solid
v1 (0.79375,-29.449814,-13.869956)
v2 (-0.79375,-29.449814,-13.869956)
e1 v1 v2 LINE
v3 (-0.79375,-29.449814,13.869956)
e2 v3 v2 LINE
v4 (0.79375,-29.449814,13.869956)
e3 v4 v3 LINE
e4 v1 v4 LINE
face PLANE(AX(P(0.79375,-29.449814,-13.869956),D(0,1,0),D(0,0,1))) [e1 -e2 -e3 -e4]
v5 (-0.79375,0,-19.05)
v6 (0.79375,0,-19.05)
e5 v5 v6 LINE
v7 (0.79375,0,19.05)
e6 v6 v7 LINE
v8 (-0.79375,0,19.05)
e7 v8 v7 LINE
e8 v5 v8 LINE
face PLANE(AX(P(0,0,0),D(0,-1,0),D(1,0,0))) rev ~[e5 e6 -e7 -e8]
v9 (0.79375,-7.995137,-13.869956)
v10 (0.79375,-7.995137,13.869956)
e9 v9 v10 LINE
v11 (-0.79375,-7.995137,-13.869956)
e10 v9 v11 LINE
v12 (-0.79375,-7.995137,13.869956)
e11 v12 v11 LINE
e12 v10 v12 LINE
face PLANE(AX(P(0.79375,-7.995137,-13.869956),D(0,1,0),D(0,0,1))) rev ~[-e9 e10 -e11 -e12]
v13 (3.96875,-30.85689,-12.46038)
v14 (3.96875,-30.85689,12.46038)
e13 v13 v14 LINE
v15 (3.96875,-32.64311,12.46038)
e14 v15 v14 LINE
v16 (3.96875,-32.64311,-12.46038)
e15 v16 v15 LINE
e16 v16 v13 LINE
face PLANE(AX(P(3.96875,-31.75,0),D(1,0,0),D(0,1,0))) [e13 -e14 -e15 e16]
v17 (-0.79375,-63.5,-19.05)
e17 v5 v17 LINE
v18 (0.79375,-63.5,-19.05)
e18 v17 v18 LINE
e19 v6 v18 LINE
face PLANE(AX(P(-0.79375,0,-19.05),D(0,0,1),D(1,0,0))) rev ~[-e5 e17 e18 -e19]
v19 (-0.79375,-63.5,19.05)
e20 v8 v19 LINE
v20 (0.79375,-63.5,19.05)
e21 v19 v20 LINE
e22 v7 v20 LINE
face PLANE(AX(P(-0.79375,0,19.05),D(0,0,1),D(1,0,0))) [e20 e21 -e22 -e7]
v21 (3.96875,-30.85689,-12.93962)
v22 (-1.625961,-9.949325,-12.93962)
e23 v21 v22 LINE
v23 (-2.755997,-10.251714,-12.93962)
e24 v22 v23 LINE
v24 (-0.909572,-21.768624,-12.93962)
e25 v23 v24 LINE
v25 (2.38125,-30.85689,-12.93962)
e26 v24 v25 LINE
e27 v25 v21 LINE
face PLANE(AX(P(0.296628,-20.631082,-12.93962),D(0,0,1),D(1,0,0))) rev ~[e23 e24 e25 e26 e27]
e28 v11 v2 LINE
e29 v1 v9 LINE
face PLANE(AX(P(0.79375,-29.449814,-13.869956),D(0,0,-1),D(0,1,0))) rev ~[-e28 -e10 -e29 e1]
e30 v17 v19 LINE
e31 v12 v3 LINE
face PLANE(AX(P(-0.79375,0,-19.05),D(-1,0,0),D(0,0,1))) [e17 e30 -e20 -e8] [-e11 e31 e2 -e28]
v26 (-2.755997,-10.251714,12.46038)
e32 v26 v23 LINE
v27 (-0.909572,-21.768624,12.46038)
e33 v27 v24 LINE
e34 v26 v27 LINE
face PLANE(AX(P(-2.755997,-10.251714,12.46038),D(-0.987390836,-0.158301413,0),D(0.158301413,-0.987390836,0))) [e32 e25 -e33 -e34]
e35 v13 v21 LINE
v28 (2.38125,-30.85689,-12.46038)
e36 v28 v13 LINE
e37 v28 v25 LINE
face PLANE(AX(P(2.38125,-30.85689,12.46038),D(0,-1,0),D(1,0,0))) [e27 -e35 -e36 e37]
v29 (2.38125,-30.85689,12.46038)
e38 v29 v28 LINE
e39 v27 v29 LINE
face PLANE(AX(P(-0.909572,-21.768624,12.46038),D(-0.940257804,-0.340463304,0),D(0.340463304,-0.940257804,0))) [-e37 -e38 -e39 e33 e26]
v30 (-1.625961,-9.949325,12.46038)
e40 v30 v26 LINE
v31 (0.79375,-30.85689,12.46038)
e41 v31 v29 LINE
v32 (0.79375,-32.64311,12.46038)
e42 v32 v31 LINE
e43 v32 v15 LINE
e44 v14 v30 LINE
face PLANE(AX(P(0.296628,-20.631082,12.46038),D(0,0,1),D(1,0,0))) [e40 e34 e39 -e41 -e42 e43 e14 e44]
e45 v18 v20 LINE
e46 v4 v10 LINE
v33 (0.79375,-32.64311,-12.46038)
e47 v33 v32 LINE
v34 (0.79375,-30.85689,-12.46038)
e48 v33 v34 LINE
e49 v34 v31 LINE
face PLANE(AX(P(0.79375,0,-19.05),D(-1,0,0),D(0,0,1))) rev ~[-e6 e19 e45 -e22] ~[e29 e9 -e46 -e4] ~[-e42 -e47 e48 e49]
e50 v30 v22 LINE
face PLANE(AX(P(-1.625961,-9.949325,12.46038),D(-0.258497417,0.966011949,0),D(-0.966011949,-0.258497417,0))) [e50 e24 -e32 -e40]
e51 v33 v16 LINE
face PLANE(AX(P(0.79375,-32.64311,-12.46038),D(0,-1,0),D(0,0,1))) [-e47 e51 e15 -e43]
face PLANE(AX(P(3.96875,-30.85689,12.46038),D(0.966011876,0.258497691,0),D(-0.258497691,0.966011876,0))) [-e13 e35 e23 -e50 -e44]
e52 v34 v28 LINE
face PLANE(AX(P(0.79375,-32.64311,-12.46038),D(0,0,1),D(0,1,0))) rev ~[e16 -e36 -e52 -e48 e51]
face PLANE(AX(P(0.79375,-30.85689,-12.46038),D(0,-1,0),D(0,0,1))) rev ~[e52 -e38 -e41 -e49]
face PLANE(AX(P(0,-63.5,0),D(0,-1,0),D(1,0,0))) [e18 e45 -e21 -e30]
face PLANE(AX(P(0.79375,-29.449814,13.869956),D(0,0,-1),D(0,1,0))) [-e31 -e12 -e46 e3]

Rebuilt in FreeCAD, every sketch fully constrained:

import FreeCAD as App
import Part
import Sketcher
Q = App.Units.Quantity

doc = App.newDocument("Part")
body = doc.addObject("PartDesign::Body", "Body")

sketch1 = body.newObject("Sketcher::SketchObject", "Sketch")
sketch1.AttachmentSupport = (doc.getObject("XZ_Plane"), [""])
sketch1.MapMode = "FlatFace"
sketch1.addGeometry([
    Part.LineSegment(App.Vector(-0.8, 19.1, 0), App.Vector(-0.8, -19.1, 0)),
    Part.LineSegment(App.Vector(-0.8, -19.1, 0), App.Vector(0.8, -19.1, 0)),
    Part.LineSegment(App.Vector(0.8, -19.1, 0), App.Vector(0.8, 19.1, 0)),
    Part.LineSegment(App.Vector(0.8, 19.1, 0), App.Vector(-0.8, 19.1, 0)),
], False)
sketch1.addConstraint([
    Sketcher.Constraint("Coincident", 0, 2, 1, 1),
    Sketcher.Constraint("Coincident", 1, 2, 2, 1),
    Sketcher.Constraint("Coincident", 2, 2, 3, 1),
    Sketcher.Constraint("Coincident", 3, 2, 0, 1),
    Sketcher.Constraint("Vertical", 0),
    Sketcher.Constraint("Horizontal", 1),
    Sketcher.Constraint("Vertical", 2),
    Sketcher.Constraint("Horizontal", 3),
    Sketcher.Constraint("Symmetric", 0, 2, 2, 2, -1, 1),
    Sketcher.Constraint("DistanceY", 0, 2, 0, 1, Q("1.5 in")),
    Sketcher.Constraint("DistanceX", 1, 1, 1, 2, Q("0.0625 in")),
])
pad1 = body.newObject("PartDesign::Pad", "Pad")
pad1.Profile = sketch1
pad1.Length = Q("2.5 in")

sketch2 = body.newObject("Sketcher::SketchObject", "Sketch001")
sketch2.AttachmentSupport = (doc.getObject("YZ_Plane"), [""])
sketch2.MapMode = "FlatFace"
sketch2.AttachmentOffset = App.Placement(App.Vector(0, 0, 0.03125 * 25.4), App.Rotation())
sketch2.addGeometry([
    Part.LineSegment(App.Vector(-32.6, 12.5, 0), App.Vector(-32.6, -12.5, 0)),
    Part.LineSegment(App.Vector(-32.6, -12.5, 0), App.Vector(-30.9, -12.5, 0)),
    Part.LineSegment(App.Vector(-30.9, -12.5, 0), App.Vector(-30.9, 12.5, 0)),
    Part.LineSegment(App.Vector(-30.9, 12.5, 0), App.Vector(-32.6, 12.5, 0)),
], False)
sketch2.addConstraint([
    Sketcher.Constraint("Coincident", 0, 2, 1, 1),
    Sketcher.Constraint("Coincident", 1, 2, 2, 1),
    Sketcher.Constraint("Coincident", 2, 2, 3, 1),
    Sketcher.Constraint("Coincident", 3, 2, 0, 1),
    Sketcher.Constraint("Vertical", 0),
    Sketcher.Constraint("Horizontal", 1),
    Sketcher.Constraint("Vertical", 2),
    Sketcher.Constraint("Horizontal", 3),
    Sketcher.Constraint("DistanceX", 1, 1, 1, 2, Q("1.78622 mm")),
    Sketcher.Constraint("DistanceY", 0, 2, 0, 1, Q("24.92076 mm")),
    Sketcher.Constraint("DistanceX", 0, 2, -1, 1, Q("32.64311 mm")),
    Sketcher.Constraint("DistanceY", 0, 2, -1, 1, Q("12.46038 mm")),
])
pad2 = body.newObject("PartDesign::Pad", "Pad001")
pad2.Profile = sketch2
pad2.Length = Q("0.125 in")

sketch3 = body.newObject("Sketcher::SketchObject", "Sketch002")
sketch3.AttachmentSupport = (doc.getObject("YZ_Plane"), [""])
sketch3.MapMode = "FlatFace"
sketch3.AttachmentOffset = App.Placement(App.Vector(0, 0, 0.03125 * 25.4), App.Rotation())
sketch3.addGeometry([
    Part.LineSegment(App.Vector(-29, 14, 0), App.Vector(-29, -14, 0)),
    Part.LineSegment(App.Vector(-29, -14, 0), App.Vector(-8, -14, 0)),
    Part.LineSegment(App.Vector(-8, -14, 0), App.Vector(-8, 14, 0)),
    Part.LineSegment(App.Vector(-8, 14, 0), App.Vector(-29, 14, 0)),
], False)
sketch3.addConstraint([
    Sketcher.Constraint("Coincident", 0, 2, 1, 1),
    Sketcher.Constraint("Coincident", 1, 2, 2, 1),
    Sketcher.Constraint("Coincident", 2, 2, 3, 1),
    Sketcher.Constraint("Coincident", 3, 2, 0, 1),
    Sketcher.Constraint("Vertical", 0),
    Sketcher.Constraint("Horizontal", 1),
    Sketcher.Constraint("Vertical", 2),
    Sketcher.Constraint("Horizontal", 3),
    Sketcher.Constraint("DistanceX", 1, 1, 1, 2, Q("21.454677 mm")),
    Sketcher.Constraint("DistanceY", 0, 2, 0, 1, Q("27.739912 mm")),
    Sketcher.Constraint("DistanceX", 0, 2, -1, 1, Q("29.449814 mm")),
    Sketcher.Constraint("DistanceY", 0, 2, -1, 1, Q("13.869956 mm")),
])
pocket1 = body.newObject("PartDesign::Pocket", "Pocket")
pocket1.Profile = sketch3
pocket1.Length = Q("1 in")
pocket2 = body.newObject("PartDesign::Pocket", "Pocket001")
pocket2.Profile = sketch3
pocket2.Length = Q("1 in")

sketch4 = body.newObject("Sketcher::SketchObject", "Sketch003")
sketch4.AttachmentSupport = (doc.getObject("XY_Plane"), [""])
sketch4.MapMode = "FlatFace"
sketch4.AttachmentOffset = App.Placement(App.Vector(0, 0, 12.46038), App.Rotation())
sketch4.addGeometry([
    Part.LineSegment(App.Vector(2.4, -30.9, 0), App.Vector(4, -30.9, 0)),
    Part.LineSegment(App.Vector(4, -30.9, 0), App.Vector(-1.6, -9.9, 0)),
    Part.LineSegment(App.Vector(-1.6, -9.9, 0), App.Vector(-2.8, -10.3, 0)),
    Part.LineSegment(App.Vector(-2.8, -10.3, 0), App.Vector(-0.9, -21.8, 0)),
    Part.LineSegment(App.Vector(-0.9, -21.8, 0), App.Vector(2.4, -30.9, 0)),
], False)
sketch4.addConstraint([
    Sketcher.Constraint("Coincident", 0, 2, 1, 1),
    Sketcher.Constraint("Coincident", 1, 2, 2, 1),
    Sketcher.Constraint("Coincident", 2, 2, 3, 1),
    Sketcher.Constraint("Coincident", 3, 2, 4, 1),
    Sketcher.Constraint("Coincident", 4, 2, 0, 1),
    Sketcher.Constraint("Horizontal", 0),
    Sketcher.Constraint("Perpendicular", 1, 2),
    Sketcher.Constraint("DistanceX", 0, 1, 0, 2, Q("0.0625 in")),
    Sketcher.Constraint("DistanceX", -1, 1, 0, 2, Q("0.15625 in")),
    Sketcher.Constraint("DistanceY", 3, 2, 1, 2, Q("11.819299 mm")),
    Sketcher.Constraint("DistanceY", 0, 2, -1, 1, Q("30.85689 mm")),
    Sketcher.Constraint("DistanceX", 1, 2, -1, 1, Q("1.625961 mm")),
    Sketcher.Constraint("DistanceY", 2, 2, 1, 2, Q("0.302389 mm")),
    Sketcher.Constraint("DistanceX", 3, 2, 0, 2, Q("4.878322 mm")),
    Sketcher.Constraint("Distance", 1, Q("21.643176 mm")),
])
pad3 = body.newObject("PartDesign::Pad", "Pad002")
pad3.Profile = sketch4
pad3.Length = Q("1 in")
pad3.Reversed = True

doc.recompute()
